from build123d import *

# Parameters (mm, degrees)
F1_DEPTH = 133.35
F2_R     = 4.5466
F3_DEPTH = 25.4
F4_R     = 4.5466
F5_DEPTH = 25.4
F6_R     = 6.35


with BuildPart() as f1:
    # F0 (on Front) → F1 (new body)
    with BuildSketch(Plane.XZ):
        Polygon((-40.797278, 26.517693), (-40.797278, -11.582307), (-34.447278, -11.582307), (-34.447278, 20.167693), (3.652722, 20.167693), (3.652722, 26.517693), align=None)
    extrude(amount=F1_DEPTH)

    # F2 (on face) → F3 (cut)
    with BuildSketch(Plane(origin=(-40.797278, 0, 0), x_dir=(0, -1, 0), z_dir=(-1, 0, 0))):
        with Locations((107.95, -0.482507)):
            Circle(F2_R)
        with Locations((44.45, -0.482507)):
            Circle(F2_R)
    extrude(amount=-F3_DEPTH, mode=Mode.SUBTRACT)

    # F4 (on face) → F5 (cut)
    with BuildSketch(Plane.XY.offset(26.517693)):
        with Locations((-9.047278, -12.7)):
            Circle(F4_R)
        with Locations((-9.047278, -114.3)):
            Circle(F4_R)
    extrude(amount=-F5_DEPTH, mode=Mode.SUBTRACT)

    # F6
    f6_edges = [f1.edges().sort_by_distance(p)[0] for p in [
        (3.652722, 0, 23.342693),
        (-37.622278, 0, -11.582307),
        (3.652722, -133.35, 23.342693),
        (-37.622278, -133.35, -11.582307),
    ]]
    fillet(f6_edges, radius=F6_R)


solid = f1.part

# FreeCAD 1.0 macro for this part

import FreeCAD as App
import Part
import Sketcher

V = App.Vector
Q = App.Units.Quantity


def edges_at(feature, points):
    """Names of the edges that pass closest to the given points."""
    edges = feature.Shape.Edges
    near = lambda p: min(range(len(edges)), key=lambda i: edges[i].distToShape(Part.Vertex(*p))[0])
    return sorted({f"Edge{near(p) + 1}" for p in points})

doc = App.newDocument("Part")
body = doc.addObject("PartDesign::Body", "Body")

# Sketch on XZ plane
sketch1 = doc.addObject("Sketcher::SketchObject", "Sketch")
body.addObject(sketch1)
sketch1.AttachmentSupport = (doc.XZ_Plane, [""])
sketch1.MapMode = "FlatFace"
sketch1.addGeometry(Part.LineSegment(V(-41, 27, 0), V(-41, -12, 0)), False)
sketch1.addGeometry(Part.LineSegment(V(-41, -12, 0), V(-34, -12, 0)), False)
sketch1.addGeometry(Part.LineSegment(V(-34, -12, 0), V(-34, 20, 0)), False)
sketch1.addGeometry(Part.LineSegment(V(-34, 20, 0), V(4, 20, 0)), False)
sketch1.addGeometry(Part.LineSegment(V(4, 20, 0), V(4, 27, 0)), False)
sketch1.addGeometry(Part.LineSegment(V(4, 27, 0), V(-41, 27, 0)), False)
sketch1.addConstraint(Sketcher.Constraint("Coincident", 0, 2, 1, 1))
sketch1.addConstraint(Sketcher.Constraint("Coincident", 1, 2, 2, 1))
sketch1.addConstraint(Sketcher.Constraint("Coincident", 2, 2, 3, 1))
sketch1.addConstraint(Sketcher.Constraint("Coincident", 3, 2, 4, 1))
sketch1.addConstraint(Sketcher.Constraint("Coincident", 4, 2, 5, 1))
sketch1.addConstraint(Sketcher.Constraint("Coincident", 5, 2, 0, 1))
sketch1.addConstraint(Sketcher.Constraint("Vertical", 0))
sketch1.addConstraint(Sketcher.Constraint("Horizontal", 1))
sketch1.addConstraint(Sketcher.Constraint("Vertical", 2))
sketch1.addConstraint(Sketcher.Constraint("Horizontal", 3))
sketch1.addConstraint(Sketcher.Constraint("Vertical", 4))
sketch1.addConstraint(Sketcher.Constraint("Horizontal", 5))
sketch1.addConstraint(Sketcher.Constraint("Equal", 3, 0))
sketch1.addConstraint(Sketcher.Constraint("Equal", 1, 4))
sketch1.addConstraint(Sketcher.Constraint("DistanceX", 3, 1, 3, 2, Q("1.5 in")))
sketch1.addConstraint(Sketcher.Constraint("DistanceX", 1, 1, 1, 2, Q("0.25 in")))
sketch1.addConstraint(Sketcher.Constraint("DistanceX", -1, 1, 3, 2, Q("3.652722 mm")))
sketch1.addConstraint(Sketcher.Constraint("DistanceY", 0, 2, -1, 1, Q("11.582307 mm")))
pad1 = doc.addObject("PartDesign::Pad", "Pad")
body.addObject(pad1)
pad1.Profile = sketch1
pad1.Length = Q("5.25 in")

# Sketch on YZ plane
sketch2 = doc.addObject("Sketcher::SketchObject", "Sketch001")
body.addObject(sketch2)
sketch2.AttachmentSupport = (doc.YZ_Plane, [""])
sketch2.MapMode = "FlatFace"
sketch2.AttachmentOffset = App.Placement(V(0, 0, -40.797278), App.Rotation())
sketch2.addGeometry(Part.Circle(V(-108, -0.5, 0), V(0, 0, 1), 4.5), False)
sketch2.addGeometry(Part.Circle(V(-44.5, -0.5, 0), V(0, 0, 1), 4.5), False)
sketch2.addConstraint(Sketcher.Constraint("Equal", 0, 1))
sketch2.addConstraint(Sketcher.Constraint("Horizontal", 0, 3, 1, 3))
sketch2.addConstraint(Sketcher.Constraint("Diameter", 0, Q("0.358 in")))
sketch2.addConstraint(Sketcher.Constraint("DistanceX", 0, 3, 1, 3, Q("2.5 in")))
sketch2.addConstraint(Sketcher.Constraint("DistanceX", 0, 3, -1, 1, Q("4.25 in")))
sketch2.addConstraint(Sketcher.Constraint("DistanceY", 0, 3, -1, 1, Q("0.482507 mm")))
pocket1 = doc.addObject("PartDesign::Pocket", "Pocket")
body.addObject(pocket1)
pocket1.Profile = sketch2
pocket1.Length = Q("1 in")
pocket1.Reversed = True

# Sketch on XY plane
sketch3 = doc.addObject("Sketcher::SketchObject", "Sketch002")
body.addObject(sketch3)
sketch3.AttachmentSupport = (doc.XY_Plane, [""])
sketch3.MapMode = "FlatFace"
sketch3.AttachmentOffset = App.Placement(V(0, 0, 26.517693), App.Rotation())
sketch3.addGeometry(Part.Circle(V(-9, -12.7, 0), V(0, 0, 1), 4.5), False)
sketch3.addGeometry(Part.Circle(V(-9, -114.3, 0), V(0, 0, 1), 4.5), False)
sketch3.addConstraint(Sketcher.Constraint("Equal", 0, 1))
sketch3.addConstraint(Sketcher.Constraint("Vertical", 0, 3, 1, 3))
sketch3.addConstraint(Sketcher.Constraint("Diameter", 0, Q("0.358 in")))
sketch3.addConstraint(Sketcher.Constraint("DistanceY", 1, 3, 0, 3, Q("4 in")))
sketch3.addConstraint(Sketcher.Constraint("DistanceY", 0, 3, -1, 1, Q("0.5 in")))
sketch3.addConstraint(Sketcher.Constraint("DistanceX", 0, 3, -1, 1, Q("9.047278 mm")))
pocket2 = doc.addObject("PartDesign::Pocket", "Pocket001")
body.addObject(pocket2)
pocket2.Profile = sketch3
pocket2.Length = Q("1 in")
doc.recompute()

fillet = doc.addObject("PartDesign::Fillet", "Fillet")
body.addObject(fillet)
fillet.Base = (pocket2, edges_at(pocket2, [
    (3.653, 0, 23.343),
    (-37.622, 0, -11.582),
    (3.653, -133.35, 23.343),
    (-37.622, -133.35, -11.582),
]))
fillet.Radius = Q("0.25 in")

doc.recompute()
